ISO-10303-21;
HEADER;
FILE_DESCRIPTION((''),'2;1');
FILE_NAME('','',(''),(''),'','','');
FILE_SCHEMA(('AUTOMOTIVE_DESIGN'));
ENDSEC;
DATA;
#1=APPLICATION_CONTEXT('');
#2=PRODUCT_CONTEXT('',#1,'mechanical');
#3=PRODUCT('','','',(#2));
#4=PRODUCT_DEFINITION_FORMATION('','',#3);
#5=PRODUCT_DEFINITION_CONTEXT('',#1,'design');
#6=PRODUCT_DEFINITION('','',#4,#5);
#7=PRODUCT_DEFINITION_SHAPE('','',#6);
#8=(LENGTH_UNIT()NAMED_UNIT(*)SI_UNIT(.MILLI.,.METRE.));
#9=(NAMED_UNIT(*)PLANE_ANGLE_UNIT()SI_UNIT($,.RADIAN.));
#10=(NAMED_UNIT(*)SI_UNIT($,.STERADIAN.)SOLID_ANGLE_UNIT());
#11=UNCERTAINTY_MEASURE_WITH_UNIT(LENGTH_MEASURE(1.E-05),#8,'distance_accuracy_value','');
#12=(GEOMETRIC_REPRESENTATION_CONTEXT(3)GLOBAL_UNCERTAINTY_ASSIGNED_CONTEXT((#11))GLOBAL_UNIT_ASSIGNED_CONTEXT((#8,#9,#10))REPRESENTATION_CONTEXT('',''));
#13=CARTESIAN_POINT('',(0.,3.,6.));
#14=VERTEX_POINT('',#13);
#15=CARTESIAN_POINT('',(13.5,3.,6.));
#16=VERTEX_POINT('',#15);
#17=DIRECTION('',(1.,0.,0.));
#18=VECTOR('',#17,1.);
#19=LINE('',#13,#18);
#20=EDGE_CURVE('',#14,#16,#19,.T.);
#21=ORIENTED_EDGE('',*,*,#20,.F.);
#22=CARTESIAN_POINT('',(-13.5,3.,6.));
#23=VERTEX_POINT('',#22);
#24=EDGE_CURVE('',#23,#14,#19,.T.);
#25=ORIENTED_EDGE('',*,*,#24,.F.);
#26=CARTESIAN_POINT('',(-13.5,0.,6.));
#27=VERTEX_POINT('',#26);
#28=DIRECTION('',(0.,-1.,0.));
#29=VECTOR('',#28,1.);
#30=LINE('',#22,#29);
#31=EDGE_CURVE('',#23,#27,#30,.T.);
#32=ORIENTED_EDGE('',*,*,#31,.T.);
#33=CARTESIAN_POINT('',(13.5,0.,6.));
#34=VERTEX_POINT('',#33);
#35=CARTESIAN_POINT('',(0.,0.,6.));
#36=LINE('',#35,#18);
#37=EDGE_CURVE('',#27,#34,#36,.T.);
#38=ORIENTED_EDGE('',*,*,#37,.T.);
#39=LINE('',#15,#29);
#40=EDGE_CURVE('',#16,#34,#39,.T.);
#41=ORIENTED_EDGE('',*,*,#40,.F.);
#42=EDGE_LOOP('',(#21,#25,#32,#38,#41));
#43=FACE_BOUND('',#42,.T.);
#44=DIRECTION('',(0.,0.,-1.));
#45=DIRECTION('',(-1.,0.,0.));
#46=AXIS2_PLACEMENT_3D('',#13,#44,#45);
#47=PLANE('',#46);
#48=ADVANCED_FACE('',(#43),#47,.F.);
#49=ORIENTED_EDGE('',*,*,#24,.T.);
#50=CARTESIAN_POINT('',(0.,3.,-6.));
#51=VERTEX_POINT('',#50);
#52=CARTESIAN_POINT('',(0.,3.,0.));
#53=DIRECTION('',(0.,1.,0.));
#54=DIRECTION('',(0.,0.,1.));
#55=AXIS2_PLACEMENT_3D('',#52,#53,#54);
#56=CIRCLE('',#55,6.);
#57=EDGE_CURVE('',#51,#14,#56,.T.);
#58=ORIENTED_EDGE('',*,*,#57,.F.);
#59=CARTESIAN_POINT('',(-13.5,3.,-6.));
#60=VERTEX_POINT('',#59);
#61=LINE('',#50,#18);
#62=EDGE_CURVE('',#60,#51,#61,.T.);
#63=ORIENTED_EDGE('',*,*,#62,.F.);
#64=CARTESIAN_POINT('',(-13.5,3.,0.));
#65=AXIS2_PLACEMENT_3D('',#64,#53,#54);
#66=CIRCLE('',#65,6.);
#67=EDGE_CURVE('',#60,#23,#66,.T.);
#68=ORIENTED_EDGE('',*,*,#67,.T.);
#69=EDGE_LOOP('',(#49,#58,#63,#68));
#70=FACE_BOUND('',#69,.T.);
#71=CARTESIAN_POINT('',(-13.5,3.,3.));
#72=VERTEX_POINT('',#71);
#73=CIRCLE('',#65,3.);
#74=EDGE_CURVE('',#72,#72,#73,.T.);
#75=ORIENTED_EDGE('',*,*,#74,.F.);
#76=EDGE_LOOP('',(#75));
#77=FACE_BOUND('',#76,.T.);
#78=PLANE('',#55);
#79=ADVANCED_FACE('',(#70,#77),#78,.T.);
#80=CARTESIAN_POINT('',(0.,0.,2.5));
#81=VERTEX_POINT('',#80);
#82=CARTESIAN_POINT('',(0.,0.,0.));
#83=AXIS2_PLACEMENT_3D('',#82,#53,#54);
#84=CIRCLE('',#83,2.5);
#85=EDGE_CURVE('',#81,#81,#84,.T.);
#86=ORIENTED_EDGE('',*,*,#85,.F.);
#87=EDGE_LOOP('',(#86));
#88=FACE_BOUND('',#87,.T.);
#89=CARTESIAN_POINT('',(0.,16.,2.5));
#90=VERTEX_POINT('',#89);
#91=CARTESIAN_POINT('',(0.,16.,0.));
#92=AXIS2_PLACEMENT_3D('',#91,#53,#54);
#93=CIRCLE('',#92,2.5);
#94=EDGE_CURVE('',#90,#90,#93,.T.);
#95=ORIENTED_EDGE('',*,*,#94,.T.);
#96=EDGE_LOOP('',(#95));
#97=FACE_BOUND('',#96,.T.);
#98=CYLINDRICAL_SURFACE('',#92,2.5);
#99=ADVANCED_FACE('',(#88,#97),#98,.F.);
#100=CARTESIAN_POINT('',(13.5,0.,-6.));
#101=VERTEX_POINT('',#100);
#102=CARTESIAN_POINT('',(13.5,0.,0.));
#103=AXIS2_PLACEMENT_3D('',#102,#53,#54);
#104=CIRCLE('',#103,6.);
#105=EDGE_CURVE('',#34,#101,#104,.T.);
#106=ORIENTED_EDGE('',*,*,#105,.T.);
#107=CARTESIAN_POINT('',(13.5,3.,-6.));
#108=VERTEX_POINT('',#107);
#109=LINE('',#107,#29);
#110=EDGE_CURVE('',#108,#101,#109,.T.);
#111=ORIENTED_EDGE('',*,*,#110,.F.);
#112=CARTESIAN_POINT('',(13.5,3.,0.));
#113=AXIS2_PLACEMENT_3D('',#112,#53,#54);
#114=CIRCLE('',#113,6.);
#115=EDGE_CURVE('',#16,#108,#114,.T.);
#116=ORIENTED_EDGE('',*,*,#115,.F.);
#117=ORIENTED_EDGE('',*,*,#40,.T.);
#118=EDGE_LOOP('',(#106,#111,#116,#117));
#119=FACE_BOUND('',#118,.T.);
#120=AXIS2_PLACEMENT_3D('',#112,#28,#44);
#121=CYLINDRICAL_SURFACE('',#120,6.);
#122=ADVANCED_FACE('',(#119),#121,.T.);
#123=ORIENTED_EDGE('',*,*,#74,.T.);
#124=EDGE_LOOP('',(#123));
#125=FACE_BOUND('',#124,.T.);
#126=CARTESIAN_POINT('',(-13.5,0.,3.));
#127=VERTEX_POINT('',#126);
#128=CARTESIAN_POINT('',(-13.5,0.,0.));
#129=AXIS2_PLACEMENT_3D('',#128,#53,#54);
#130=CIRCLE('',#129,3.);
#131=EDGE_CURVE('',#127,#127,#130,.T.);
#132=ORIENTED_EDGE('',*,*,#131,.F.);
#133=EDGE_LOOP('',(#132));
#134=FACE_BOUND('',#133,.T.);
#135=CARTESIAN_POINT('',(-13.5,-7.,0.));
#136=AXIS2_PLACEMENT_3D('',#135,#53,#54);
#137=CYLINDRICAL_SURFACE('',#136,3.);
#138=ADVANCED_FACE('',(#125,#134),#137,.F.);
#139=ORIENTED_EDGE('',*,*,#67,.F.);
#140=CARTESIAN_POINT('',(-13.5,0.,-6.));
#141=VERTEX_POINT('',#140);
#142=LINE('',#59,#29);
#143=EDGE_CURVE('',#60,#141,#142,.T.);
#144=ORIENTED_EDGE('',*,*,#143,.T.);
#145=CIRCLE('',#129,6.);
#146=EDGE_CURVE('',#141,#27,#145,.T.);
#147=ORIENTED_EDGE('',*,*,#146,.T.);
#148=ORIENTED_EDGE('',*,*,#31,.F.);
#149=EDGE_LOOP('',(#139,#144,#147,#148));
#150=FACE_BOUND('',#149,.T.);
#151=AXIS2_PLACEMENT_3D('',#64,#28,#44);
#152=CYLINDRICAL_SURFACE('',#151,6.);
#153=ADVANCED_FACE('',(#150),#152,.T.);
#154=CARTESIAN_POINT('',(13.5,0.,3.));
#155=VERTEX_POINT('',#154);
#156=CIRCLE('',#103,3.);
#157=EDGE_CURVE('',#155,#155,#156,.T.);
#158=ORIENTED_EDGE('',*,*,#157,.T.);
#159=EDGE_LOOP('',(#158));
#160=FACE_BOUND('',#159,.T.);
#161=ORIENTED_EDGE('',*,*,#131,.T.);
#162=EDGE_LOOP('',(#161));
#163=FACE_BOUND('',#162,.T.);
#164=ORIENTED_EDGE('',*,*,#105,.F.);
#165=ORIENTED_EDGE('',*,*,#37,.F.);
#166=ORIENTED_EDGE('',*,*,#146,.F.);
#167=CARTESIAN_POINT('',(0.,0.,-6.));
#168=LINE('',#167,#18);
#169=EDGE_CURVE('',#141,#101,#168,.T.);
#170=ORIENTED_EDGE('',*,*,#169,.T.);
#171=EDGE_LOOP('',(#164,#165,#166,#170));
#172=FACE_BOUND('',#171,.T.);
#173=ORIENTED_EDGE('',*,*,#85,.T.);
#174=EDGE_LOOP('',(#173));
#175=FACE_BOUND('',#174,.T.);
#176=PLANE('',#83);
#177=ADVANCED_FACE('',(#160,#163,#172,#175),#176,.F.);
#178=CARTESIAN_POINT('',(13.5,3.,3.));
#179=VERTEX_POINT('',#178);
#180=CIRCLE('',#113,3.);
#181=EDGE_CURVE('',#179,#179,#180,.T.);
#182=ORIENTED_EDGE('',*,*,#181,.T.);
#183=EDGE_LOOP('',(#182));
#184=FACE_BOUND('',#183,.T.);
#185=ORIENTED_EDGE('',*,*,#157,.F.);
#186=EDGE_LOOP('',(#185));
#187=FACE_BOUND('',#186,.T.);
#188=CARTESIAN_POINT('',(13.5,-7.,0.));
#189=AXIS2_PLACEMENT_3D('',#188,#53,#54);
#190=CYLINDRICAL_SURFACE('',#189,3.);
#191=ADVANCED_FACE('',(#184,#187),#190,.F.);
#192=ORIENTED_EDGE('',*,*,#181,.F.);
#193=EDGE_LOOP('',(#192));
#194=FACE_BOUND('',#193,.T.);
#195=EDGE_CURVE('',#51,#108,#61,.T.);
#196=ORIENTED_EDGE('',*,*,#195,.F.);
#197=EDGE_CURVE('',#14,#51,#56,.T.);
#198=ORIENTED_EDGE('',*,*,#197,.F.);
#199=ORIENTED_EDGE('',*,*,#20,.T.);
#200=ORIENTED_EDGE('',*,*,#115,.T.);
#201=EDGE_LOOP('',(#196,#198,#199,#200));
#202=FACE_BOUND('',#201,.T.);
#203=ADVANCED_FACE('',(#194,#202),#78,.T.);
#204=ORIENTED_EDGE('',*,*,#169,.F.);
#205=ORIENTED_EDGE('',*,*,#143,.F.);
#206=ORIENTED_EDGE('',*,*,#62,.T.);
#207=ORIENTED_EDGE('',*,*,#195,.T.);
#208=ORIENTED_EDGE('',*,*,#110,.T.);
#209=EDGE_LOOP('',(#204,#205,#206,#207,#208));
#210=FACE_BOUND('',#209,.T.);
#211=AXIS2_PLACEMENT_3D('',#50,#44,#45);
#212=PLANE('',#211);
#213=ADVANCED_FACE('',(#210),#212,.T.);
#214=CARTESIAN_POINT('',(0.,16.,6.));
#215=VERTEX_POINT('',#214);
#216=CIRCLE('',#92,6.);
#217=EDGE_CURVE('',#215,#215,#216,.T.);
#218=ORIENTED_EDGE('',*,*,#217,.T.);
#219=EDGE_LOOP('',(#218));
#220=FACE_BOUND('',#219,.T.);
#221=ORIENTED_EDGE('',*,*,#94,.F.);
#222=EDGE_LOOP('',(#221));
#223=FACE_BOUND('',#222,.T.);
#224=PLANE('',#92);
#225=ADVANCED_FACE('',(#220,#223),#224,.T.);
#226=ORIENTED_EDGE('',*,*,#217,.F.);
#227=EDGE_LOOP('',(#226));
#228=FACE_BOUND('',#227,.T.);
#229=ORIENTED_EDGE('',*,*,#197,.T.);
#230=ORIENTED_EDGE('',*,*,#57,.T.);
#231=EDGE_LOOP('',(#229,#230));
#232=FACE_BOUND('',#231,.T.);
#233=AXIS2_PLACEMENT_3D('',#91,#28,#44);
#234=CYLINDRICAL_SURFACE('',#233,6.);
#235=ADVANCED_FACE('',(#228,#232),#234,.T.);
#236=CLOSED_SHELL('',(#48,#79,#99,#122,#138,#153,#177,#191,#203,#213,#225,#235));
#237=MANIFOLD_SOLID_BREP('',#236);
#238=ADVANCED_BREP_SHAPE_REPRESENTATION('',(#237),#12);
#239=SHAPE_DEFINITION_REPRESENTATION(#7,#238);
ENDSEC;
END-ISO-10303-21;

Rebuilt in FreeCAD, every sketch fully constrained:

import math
import FreeCAD as App
import Part
import Sketcher
Q = App.Units.Quantity

doc = App.newDocument("Part")
body = doc.addObject("PartDesign::Body", "Body")

# Sketch on XZ plane
sketch1 = body.newObject("Sketcher::SketchObject", "Sketch")
sketch1.AttachmentSupport = (doc.getObject("XZ_Plane"), [""])
sketch1.MapMode = "FlatFace"
sketch1.addGeometry([
    Part.LineSegment(App.Vector(-14, 6, 0), App.Vector(14, 6, 0)),
    Part.ArcOfCircle(Part.Circle(App.Vector(14, 0, 0), App.Vector(0, 0, 1), 6), math.radians(-90), math.radians(90)),
    Part.LineSegment(App.Vector(14, -6, 0), App.Vector(-14, -6, 0)),
    Part.ArcOfCircle(Part.Circle(App.Vector(-14, 0, 0), App.Vector(0, 0, 1), 6), math.radians(90), math.radians(270)),
], False)
sketch1.addConstraint([
    Sketcher.Constraint("Tangent", 0, 2, 1, 2),
    Sketcher.Constraint("Tangent", 1, 1, 2, 1),
    Sketcher.Constraint("Tangent", 2, 2, 3, 2),
    Sketcher.Constraint("Tangent", 3, 1, 0, 1),
    Sketcher.Constraint("Horizontal", 0),
    Sketcher.Constraint("Horizontal", 2),
    Sketcher.Constraint("Symmetric", 1, 3, 3, 3, -1, 1),
    Sketcher.Constraint("Radius", 1, Q("6 mm")),
    Sketcher.Constraint("DistanceX", 0, 1, 0, 2, Q("27 mm")),
])
pad1 = body.newObject("PartDesign::Pad", "Pad")
pad1.Profile = sketch1
pad1.Length = 3
pad1.Reversed = True

# Sketch on XZ plane
sketch2 = body.newObject("Sketcher::SketchObject", "Sketch001")
sketch2.AttachmentSupport = (doc.getObject("XZ_Plane"), [""])
sketch2.MapMode = "FlatFace"
sketch2.AttachmentOffset = App.Placement(App.Vector(0, 0, -3), App.Rotation())
sketch2.addGeometry(Part.Circle(App.Vector(0, 0, 0), App.Vector(0, 0, 1), 6), False)
sketch2.addConstraint([
    Sketcher.Constraint("Coincident", 0, 3, -1, 1),
    Sketcher.Constraint("Diameter", 0, Q("12 mm")),
])
pad2 = body.newObject("PartDesign::Pad", "Pad001")
pad2.Profile = sketch2
pad2.Length = 13
pad2.Reversed = True

# Sketch on XZ plane
sketch3 = body.newObject("Sketcher::SketchObject", "Sketch002")
sketch3.AttachmentSupport = (doc.getObject("XZ_Plane"), [""])
sketch3.MapMode = "FlatFace"
sketch3.AttachmentOffset = App.Placement(App.Vector(0, 0, -16), App.Rotation())
sketch3.addGeometry(Part.Circle(App.Vector(0, 0, 0), App.Vector(0, 0, 1), 2.5), False)
sketch3.addConstraint([
    Sketcher.Constraint("Coincident", 0, 3, -1, 1),
    Sketcher.Constraint("Diameter", 0, Q("5 mm")),
])
doc.recompute()
hole = body.newObject("PartDesign::Hole", "Hole")
hole.Profile = sketch3
hole.ThreadType = "None"
hole.Diameter = 5
hole.DepthType = "ThroughAll"
hole.Reversed = True

# Sketch on XZ plane
sketch4 = body.newObject("Sketcher::SketchObject", "Sketch003")
sketch4.AttachmentSupport = (doc.getObject("XZ_Plane"), [""])
sketch4.MapMode = "FlatFace"
sketch4.AttachmentOffset = App.Placement(App.Vector(0, 0, -3), App.Rotation())
sketch4.addGeometry([
    Part.Circle(App.Vector(-13.5, 0, 0), App.Vector(0, 0, 1), 3),
    Part.Circle(App.Vector(13.5, 0, 0), App.Vector(0, 0, 1), 3),
], False)
sketch4.addConstraint([
    Sketcher.Constraint("Equal", 0, 1),
    Sketcher.Constraint("Symmetric", 0, 3, 1, 3, -1, 1),
    Sketcher.Constraint("PointOnObject", 0, 3, -1),
    Sketcher.Constraint("Diameter", 0, Q("6 mm")),
    Sketcher.Constraint("DistanceX", 0, 3, 1, 3, Q("27 mm")),
])
pocket1 = body.newObject("PartDesign::Pocket", "Pocket")
pocket1.Profile = sketch4
pocket1.Length = 10
pocket1.Reversed = True

doc.recompute()
